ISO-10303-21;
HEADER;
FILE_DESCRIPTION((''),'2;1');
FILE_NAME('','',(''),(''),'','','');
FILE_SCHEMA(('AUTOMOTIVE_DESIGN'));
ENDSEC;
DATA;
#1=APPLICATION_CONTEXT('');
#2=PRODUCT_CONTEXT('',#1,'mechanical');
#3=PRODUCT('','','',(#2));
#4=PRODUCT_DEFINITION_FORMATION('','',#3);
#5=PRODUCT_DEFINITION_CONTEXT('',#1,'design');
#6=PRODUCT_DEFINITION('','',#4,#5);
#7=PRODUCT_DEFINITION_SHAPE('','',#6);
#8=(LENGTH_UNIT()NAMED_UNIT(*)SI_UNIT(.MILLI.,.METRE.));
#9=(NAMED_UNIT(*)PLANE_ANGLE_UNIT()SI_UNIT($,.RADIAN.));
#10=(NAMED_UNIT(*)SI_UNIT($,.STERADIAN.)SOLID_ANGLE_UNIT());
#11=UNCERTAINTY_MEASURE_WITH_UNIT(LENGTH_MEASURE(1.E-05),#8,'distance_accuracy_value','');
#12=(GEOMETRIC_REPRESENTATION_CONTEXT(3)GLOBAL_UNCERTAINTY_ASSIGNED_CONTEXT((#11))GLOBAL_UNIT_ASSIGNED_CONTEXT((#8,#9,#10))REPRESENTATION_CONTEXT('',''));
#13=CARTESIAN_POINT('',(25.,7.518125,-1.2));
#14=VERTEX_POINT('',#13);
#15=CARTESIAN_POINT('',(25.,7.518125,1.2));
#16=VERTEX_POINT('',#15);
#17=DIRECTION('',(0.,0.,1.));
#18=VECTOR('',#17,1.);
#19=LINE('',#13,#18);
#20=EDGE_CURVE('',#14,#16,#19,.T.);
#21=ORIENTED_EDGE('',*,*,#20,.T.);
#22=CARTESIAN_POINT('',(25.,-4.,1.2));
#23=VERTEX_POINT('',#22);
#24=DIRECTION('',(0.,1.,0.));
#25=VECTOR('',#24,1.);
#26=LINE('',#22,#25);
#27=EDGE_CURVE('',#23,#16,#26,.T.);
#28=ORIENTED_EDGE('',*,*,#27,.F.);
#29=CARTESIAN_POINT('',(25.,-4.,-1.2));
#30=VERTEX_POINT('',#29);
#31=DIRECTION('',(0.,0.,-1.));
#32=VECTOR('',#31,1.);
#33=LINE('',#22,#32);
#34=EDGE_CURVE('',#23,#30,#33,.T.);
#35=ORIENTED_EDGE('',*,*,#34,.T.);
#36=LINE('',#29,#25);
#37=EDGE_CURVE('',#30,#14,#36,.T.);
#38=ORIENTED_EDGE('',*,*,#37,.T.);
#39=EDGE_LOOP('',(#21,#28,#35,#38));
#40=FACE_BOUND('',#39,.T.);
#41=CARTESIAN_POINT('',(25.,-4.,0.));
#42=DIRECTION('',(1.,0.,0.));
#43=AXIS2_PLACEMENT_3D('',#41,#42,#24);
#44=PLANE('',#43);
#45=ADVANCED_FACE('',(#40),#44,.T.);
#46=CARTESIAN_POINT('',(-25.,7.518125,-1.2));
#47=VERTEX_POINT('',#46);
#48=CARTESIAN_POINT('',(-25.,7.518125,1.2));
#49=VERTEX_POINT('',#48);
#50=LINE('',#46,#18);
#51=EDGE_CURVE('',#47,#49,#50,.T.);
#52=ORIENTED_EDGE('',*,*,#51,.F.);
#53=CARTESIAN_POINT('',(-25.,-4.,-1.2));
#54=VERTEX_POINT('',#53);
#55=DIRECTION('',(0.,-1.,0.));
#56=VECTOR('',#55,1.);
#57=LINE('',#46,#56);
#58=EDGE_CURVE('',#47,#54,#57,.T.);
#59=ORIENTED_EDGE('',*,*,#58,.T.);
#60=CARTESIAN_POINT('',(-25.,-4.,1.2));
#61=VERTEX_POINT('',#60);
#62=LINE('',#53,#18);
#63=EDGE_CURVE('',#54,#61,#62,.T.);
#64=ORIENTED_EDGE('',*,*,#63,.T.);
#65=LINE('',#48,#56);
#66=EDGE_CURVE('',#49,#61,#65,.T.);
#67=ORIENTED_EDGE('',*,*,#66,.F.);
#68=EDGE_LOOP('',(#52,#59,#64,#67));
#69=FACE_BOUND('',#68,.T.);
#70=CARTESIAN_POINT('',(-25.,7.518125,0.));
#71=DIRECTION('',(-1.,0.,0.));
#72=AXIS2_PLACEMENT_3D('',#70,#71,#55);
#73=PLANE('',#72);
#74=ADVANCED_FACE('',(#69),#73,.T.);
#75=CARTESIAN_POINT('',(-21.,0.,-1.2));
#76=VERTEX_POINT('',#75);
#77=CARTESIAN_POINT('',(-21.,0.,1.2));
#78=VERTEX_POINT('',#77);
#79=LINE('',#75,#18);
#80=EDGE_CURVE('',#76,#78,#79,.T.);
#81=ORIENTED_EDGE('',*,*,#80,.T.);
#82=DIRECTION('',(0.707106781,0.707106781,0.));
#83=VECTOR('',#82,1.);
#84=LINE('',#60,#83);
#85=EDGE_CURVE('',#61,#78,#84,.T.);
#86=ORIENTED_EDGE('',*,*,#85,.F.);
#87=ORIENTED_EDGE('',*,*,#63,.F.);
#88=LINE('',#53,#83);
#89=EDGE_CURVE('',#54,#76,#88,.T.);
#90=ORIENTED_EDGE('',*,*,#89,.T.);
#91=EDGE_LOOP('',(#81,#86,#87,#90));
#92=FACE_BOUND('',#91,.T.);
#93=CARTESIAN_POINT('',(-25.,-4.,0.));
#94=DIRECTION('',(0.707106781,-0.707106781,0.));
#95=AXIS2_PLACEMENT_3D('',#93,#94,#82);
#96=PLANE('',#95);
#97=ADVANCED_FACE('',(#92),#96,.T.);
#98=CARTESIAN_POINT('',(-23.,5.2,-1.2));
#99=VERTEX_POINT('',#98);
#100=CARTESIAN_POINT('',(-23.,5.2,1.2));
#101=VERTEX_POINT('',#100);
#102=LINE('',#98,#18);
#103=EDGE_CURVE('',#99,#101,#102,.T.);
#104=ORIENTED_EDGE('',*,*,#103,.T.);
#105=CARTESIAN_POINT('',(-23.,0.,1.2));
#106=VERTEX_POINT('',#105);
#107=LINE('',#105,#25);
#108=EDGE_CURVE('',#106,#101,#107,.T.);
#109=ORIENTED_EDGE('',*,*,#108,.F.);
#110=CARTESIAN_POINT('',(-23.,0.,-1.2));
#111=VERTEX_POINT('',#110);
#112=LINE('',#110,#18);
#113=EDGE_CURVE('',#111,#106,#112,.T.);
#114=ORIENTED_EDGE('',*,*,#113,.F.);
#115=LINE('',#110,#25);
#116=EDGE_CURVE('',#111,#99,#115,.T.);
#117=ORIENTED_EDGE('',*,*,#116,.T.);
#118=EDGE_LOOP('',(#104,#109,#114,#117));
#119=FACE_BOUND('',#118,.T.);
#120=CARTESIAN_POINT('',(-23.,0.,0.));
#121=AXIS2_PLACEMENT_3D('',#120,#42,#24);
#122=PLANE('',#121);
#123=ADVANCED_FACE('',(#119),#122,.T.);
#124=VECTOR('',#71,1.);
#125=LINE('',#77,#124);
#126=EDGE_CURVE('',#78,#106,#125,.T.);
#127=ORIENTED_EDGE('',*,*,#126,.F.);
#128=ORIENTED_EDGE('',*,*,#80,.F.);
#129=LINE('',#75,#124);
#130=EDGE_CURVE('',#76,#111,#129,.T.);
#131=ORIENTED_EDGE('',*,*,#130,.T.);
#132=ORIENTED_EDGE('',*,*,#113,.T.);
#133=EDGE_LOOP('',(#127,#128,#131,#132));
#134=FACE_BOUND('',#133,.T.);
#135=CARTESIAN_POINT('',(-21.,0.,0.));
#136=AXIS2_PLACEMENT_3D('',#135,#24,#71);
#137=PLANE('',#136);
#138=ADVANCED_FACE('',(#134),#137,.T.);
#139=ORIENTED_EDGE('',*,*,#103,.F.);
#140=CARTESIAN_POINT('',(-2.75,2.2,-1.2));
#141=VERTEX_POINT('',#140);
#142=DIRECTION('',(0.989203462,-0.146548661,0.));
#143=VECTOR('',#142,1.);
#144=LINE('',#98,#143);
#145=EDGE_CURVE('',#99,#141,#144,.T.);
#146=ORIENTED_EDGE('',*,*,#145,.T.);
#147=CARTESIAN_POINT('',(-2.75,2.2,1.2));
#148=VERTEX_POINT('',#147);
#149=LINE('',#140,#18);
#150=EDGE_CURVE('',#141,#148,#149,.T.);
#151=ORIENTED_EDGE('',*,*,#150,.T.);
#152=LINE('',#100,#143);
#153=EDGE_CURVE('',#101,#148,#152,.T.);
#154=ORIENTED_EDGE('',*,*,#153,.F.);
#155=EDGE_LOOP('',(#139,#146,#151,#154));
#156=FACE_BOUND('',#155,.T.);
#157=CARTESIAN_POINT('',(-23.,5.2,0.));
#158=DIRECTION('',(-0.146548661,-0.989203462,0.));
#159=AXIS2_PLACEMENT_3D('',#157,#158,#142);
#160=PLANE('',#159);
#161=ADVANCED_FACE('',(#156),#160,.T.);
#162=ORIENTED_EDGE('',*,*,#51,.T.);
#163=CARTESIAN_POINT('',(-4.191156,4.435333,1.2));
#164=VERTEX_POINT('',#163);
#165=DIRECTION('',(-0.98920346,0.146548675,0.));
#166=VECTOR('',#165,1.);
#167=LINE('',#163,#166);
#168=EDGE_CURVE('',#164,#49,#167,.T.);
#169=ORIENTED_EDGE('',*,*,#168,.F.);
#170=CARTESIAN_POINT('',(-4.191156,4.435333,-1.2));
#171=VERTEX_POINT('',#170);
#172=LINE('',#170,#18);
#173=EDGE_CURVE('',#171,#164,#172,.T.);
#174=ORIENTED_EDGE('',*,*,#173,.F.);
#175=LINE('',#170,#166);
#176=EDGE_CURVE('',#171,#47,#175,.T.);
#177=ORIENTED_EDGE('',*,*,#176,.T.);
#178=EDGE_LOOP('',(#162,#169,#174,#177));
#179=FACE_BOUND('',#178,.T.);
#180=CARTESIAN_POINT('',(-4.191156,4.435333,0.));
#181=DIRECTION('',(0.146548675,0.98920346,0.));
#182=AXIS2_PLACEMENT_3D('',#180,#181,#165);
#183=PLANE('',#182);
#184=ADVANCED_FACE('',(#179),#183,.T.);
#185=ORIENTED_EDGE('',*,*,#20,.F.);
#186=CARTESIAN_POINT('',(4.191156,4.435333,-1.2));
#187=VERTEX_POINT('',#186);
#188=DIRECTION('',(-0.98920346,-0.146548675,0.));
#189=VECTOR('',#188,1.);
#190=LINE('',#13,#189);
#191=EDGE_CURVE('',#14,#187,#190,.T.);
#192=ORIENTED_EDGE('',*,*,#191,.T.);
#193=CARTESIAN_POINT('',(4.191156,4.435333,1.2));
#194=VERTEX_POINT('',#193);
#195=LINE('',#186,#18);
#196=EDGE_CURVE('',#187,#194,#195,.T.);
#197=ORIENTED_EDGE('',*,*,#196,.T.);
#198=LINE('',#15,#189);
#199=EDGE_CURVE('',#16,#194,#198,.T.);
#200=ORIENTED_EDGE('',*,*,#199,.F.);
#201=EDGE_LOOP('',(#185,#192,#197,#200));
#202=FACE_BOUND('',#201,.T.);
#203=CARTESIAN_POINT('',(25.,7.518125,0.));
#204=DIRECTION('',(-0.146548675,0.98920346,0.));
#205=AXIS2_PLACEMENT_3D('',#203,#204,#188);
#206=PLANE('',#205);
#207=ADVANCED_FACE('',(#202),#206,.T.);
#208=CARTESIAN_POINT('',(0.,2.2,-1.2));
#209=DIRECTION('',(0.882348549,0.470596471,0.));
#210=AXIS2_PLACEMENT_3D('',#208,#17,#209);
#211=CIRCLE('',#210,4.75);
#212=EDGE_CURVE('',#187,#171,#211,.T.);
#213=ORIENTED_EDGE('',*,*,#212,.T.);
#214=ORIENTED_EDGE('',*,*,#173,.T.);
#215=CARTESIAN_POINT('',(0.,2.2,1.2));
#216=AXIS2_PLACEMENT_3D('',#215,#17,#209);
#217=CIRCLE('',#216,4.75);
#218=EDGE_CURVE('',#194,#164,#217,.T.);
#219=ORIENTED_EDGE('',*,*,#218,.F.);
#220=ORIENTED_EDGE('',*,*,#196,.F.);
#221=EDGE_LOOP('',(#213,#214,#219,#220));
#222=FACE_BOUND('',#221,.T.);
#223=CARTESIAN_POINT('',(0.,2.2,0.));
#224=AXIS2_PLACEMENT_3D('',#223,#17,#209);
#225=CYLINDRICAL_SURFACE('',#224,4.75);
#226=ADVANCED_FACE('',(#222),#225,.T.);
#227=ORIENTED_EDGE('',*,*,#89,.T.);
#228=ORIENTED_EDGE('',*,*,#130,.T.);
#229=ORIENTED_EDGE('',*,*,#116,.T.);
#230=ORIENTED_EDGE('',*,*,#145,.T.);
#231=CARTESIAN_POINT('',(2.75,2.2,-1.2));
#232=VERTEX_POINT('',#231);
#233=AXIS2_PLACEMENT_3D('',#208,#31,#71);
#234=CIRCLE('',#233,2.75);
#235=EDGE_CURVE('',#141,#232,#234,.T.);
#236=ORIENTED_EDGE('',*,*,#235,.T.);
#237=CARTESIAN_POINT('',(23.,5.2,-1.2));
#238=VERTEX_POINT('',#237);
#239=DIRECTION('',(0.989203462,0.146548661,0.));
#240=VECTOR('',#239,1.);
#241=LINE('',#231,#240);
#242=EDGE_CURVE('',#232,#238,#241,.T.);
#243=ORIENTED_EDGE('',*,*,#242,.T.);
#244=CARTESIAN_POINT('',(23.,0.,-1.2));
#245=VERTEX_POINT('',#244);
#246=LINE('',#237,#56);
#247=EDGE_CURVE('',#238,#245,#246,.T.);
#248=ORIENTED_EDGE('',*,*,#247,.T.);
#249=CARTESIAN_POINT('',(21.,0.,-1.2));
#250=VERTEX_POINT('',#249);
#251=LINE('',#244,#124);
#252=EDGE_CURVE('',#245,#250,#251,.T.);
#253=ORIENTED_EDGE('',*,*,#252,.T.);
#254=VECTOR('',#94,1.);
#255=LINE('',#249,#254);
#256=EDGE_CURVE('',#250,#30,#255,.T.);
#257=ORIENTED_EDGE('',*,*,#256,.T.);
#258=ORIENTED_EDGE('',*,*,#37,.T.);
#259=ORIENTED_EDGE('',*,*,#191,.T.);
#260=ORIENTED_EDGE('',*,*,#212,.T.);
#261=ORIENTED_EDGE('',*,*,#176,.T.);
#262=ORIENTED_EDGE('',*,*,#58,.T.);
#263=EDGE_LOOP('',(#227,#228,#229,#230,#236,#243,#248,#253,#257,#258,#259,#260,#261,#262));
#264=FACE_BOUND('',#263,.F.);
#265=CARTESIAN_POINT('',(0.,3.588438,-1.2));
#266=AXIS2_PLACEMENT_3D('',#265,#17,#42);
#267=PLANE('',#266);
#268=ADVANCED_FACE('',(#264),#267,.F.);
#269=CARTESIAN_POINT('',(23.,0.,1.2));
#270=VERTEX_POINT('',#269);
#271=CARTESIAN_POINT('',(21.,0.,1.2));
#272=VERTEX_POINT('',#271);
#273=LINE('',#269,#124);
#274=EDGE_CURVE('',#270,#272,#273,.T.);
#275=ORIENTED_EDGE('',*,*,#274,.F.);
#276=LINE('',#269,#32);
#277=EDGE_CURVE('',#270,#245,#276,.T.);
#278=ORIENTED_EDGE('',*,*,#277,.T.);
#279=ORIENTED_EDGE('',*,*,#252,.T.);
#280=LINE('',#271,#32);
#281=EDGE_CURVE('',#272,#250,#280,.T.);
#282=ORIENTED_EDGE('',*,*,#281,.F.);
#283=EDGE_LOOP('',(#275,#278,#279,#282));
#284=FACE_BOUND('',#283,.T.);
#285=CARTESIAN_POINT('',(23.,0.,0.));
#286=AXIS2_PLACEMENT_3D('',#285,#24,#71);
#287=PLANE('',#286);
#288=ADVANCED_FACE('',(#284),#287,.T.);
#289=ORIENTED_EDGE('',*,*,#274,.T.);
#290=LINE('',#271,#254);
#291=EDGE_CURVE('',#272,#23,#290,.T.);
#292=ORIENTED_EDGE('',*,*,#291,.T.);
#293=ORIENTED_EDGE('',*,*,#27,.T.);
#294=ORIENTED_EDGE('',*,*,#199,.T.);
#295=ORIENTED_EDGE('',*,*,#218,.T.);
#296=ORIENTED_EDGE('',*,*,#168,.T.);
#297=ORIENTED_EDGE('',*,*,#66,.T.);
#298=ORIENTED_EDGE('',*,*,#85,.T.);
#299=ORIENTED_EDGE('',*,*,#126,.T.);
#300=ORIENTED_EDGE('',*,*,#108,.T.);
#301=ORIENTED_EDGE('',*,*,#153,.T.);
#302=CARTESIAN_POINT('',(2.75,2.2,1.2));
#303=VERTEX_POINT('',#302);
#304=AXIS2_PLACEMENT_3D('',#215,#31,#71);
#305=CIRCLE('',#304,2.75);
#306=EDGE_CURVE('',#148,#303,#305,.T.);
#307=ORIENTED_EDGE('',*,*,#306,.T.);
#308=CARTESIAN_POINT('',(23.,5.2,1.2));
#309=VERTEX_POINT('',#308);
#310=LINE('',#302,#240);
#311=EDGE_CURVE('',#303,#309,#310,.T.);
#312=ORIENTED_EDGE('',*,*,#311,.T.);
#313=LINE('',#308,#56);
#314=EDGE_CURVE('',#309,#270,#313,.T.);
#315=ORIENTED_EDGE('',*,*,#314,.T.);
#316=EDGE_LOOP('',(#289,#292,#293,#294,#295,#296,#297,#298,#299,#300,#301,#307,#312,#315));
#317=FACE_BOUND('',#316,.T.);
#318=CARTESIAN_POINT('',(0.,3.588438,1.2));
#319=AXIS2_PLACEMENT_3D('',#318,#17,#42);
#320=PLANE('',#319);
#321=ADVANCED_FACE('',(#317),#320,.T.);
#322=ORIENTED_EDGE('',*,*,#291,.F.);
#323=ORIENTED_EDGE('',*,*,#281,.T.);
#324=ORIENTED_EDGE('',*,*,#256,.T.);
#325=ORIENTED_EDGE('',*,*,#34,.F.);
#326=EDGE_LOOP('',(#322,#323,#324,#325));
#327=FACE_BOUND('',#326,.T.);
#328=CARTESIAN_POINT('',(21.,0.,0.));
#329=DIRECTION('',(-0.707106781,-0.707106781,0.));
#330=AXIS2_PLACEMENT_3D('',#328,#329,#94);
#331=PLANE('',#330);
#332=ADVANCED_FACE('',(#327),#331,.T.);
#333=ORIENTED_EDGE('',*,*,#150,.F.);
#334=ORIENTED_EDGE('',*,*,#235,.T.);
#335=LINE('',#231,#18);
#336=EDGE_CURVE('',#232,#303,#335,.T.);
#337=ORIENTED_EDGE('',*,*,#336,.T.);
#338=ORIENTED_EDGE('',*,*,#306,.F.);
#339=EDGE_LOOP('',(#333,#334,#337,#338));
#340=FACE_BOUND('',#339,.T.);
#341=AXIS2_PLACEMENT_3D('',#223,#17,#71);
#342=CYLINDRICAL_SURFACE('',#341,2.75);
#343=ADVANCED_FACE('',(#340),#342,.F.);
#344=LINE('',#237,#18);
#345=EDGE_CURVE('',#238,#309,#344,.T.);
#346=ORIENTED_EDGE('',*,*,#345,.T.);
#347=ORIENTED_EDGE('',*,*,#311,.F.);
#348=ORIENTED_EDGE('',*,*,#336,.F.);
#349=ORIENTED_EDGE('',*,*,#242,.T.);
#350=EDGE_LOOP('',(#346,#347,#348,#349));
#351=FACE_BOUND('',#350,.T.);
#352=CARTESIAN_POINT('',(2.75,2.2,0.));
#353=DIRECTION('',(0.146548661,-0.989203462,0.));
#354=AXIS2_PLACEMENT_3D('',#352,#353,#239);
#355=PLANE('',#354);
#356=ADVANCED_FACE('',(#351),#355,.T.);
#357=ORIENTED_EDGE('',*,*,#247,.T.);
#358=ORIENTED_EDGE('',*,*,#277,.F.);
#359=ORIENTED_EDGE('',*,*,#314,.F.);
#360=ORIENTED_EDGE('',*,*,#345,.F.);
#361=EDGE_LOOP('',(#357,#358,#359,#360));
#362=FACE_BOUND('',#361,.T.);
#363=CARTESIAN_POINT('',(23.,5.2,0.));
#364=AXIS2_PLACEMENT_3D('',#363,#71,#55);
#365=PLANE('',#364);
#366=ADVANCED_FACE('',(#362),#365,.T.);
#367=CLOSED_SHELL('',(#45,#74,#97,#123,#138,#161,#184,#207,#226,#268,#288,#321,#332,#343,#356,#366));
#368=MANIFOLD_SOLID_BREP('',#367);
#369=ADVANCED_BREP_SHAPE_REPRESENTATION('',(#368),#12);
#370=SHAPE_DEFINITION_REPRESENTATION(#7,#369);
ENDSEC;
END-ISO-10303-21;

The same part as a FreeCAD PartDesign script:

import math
import FreeCAD as App
import Part
import Sketcher
Q = App.Units.Quantity

doc = App.newDocument("Part")
params = doc.addObject("Spreadsheet::Sheet", "Params")
for row, (alias, value) in enumerate([
    ("sketch1_width", "2 mm"),
    ("sketch1_radius", "4.75 mm"),
    ("sketch1_radius2", "2.75 mm"),
    ("sketch1_height", "5.2 mm"),
    ("pad1_length", "2.4 mm"),
], start=1):
    params.set(f"A{row}", alias)
    params.set(f"B{row}", "=" + value)
    params.setAlias(f"B{row}", alias)

body = doc.addObject("PartDesign::Body", "Body")

sketch1 = body.newObject("Sketcher::SketchObject", "Sketch")
sketch1.AttachmentSupport = (doc.getObject("XY_Plane"), [""])
sketch1.MapMode = "FlatFace"
sketch1.addGeometry([
    Part.LineSegment(App.Vector(25, -4, 0), App.Vector(25, 7.5, 0)),
    Part.LineSegment(App.Vector(25, 7.5, 0), App.Vector(4.2, 4.4, 0)),
    Part.ArcOfCircle(Part.Circle(App.Vector(0, 2.2, 0), App.Vector(0, 0, 1), 4.8), math.radians(28), math.radians(152)),
    Part.LineSegment(App.Vector(-4.2, 4.4, 0), App.Vector(-25, 7.5, 0)),
    Part.LineSegment(App.Vector(-25, 7.5, 0), App.Vector(-25, -4, 0)),
    Part.LineSegment(App.Vector(-25, -4, 0), App.Vector(-21, 0, 0)),
    Part.LineSegment(App.Vector(-21, 0, 0), App.Vector(-23, 0, 0)),
    Part.LineSegment(App.Vector(-23, 0, 0), App.Vector(-23, 5.2, 0)),
    Part.LineSegment(App.Vector(-23, 5.2, 0), App.Vector(-2.8, 2.2, 0)),
    Part.ArcOfCircle(Part.Circle(App.Vector(0, 2.2, 0), App.Vector(0, 0, 1), 2.8), math.radians(0), math.radians(180)),
    Part.LineSegment(App.Vector(2.8, 2.2, 0), App.Vector(23, 5.2, 0)),
    Part.LineSegment(App.Vector(23, 5.2, 0), App.Vector(23, 0, 0)),
    Part.LineSegment(App.Vector(23, 0, 0), App.Vector(21, 0, 0)),
    Part.LineSegment(App.Vector(21, 0, 0), App.Vector(25, -4, 0)),
], False)
sketch1.addConstraint([
    Sketcher.Constraint("Coincident", 0, 2, 1, 1),
    Sketcher.Constraint("Coincident", 1, 2, 2, 1),
    Sketcher.Constraint("Coincident", 2, 2, 3, 1),
    Sketcher.Constraint("Coincident", 3, 2, 4, 1),
    Sketcher.Constraint("Coincident", 4, 2, 5, 1),
    Sketcher.Constraint("Coincident", 5, 2, 6, 1),
    Sketcher.Constraint("Coincident", 6, 2, 7, 1),
    Sketcher.Constraint("Coincident", 7, 2, 8, 1),
    Sketcher.Constraint("Coincident", 8, 2, 9, 2),
    Sketcher.Constraint("Coincident", 9, 1, 10, 1),
    Sketcher.Constraint("Coincident", 10, 2, 11, 1),
    Sketcher.Constraint("Coincident", 11, 2, 12, 1),
    Sketcher.Constraint("Coincident", 12, 2, 13, 1),
    Sketcher.Constraint("Coincident", 13, 2, 0, 1),
    Sketcher.Constraint("Vertical", 0),
    Sketcher.Constraint("Vertical", 4),
    Sketcher.Constraint("Horizontal", 6),
    Sketcher.Constraint("Vertical", 7),
    Sketcher.Constraint("Vertical", 11),
    Sketcher.Constraint("Horizontal", 12),
    Sketcher.Constraint("Coincident", 9, 3, 2, 3),
    Sketcher.Constraint("Symmetric", 6, 2, 11, 2, -1, 1),
    Sketcher.Constraint("Symmetric", 1, 2, 2, 2, -2),
    Sketcher.Constraint("Symmetric", 0, 2, 3, 2, -2),
    Sketcher.Constraint("Symmetric", 5, 2, 12, 2, -2),
    Sketcher.Constraint("Parallel", 3, 8),
    Sketcher.Constraint("Parallel", 1, 10),
    Sketcher.Constraint("Perpendicular", 5, 13),
    Sketcher.Constraint("Horizontal", 9, 3, 8, 2),
    Sketcher.Constraint("Horizontal", 8, 2, 9, 1),
    Sketcher.Constraint("Horizontal", 4, 2, 13, 2),
    Sketcher.Constraint("DistanceX", 6, 2, 6, 1, Q("2 mm")),
    Sketcher.Constraint("Radius", 2, Q("4.75 mm")),
    Sketcher.Constraint("Radius", 9, Q("2.75 mm")),
    Sketcher.Constraint("DistanceY", 7, 1, 7, 2, Q("5.2 mm")),
    Sketcher.Constraint("DistanceX", -1, 1, 0, 2, Q("25 mm")),
    Sketcher.Constraint("DistanceY", 4, 2, -1, 1, Q("4 mm")),
    Sketcher.Constraint("DistanceY", 9, 1, 10, 2, Q("3 mm")),
    Sketcher.Constraint("Distance", 1, Q("21.03596 mm")),
])
sketch1.setExpression("Constraints[31]", "Params.sketch1_width")
sketch1.setExpression("Constraints[32]", "Params.sketch1_radius")
sketch1.setExpression("Constraints[33]", "Params.sketch1_radius2")
sketch1.setExpression("Constraints[34]", "Params.sketch1_height")
pad1 = body.newObject("PartDesign::Pad", "Pad")
pad1.Profile = sketch1
pad1.setExpression("Length", "Params.pad1_length")
pad1.Midplane = True

doc.recompute()
